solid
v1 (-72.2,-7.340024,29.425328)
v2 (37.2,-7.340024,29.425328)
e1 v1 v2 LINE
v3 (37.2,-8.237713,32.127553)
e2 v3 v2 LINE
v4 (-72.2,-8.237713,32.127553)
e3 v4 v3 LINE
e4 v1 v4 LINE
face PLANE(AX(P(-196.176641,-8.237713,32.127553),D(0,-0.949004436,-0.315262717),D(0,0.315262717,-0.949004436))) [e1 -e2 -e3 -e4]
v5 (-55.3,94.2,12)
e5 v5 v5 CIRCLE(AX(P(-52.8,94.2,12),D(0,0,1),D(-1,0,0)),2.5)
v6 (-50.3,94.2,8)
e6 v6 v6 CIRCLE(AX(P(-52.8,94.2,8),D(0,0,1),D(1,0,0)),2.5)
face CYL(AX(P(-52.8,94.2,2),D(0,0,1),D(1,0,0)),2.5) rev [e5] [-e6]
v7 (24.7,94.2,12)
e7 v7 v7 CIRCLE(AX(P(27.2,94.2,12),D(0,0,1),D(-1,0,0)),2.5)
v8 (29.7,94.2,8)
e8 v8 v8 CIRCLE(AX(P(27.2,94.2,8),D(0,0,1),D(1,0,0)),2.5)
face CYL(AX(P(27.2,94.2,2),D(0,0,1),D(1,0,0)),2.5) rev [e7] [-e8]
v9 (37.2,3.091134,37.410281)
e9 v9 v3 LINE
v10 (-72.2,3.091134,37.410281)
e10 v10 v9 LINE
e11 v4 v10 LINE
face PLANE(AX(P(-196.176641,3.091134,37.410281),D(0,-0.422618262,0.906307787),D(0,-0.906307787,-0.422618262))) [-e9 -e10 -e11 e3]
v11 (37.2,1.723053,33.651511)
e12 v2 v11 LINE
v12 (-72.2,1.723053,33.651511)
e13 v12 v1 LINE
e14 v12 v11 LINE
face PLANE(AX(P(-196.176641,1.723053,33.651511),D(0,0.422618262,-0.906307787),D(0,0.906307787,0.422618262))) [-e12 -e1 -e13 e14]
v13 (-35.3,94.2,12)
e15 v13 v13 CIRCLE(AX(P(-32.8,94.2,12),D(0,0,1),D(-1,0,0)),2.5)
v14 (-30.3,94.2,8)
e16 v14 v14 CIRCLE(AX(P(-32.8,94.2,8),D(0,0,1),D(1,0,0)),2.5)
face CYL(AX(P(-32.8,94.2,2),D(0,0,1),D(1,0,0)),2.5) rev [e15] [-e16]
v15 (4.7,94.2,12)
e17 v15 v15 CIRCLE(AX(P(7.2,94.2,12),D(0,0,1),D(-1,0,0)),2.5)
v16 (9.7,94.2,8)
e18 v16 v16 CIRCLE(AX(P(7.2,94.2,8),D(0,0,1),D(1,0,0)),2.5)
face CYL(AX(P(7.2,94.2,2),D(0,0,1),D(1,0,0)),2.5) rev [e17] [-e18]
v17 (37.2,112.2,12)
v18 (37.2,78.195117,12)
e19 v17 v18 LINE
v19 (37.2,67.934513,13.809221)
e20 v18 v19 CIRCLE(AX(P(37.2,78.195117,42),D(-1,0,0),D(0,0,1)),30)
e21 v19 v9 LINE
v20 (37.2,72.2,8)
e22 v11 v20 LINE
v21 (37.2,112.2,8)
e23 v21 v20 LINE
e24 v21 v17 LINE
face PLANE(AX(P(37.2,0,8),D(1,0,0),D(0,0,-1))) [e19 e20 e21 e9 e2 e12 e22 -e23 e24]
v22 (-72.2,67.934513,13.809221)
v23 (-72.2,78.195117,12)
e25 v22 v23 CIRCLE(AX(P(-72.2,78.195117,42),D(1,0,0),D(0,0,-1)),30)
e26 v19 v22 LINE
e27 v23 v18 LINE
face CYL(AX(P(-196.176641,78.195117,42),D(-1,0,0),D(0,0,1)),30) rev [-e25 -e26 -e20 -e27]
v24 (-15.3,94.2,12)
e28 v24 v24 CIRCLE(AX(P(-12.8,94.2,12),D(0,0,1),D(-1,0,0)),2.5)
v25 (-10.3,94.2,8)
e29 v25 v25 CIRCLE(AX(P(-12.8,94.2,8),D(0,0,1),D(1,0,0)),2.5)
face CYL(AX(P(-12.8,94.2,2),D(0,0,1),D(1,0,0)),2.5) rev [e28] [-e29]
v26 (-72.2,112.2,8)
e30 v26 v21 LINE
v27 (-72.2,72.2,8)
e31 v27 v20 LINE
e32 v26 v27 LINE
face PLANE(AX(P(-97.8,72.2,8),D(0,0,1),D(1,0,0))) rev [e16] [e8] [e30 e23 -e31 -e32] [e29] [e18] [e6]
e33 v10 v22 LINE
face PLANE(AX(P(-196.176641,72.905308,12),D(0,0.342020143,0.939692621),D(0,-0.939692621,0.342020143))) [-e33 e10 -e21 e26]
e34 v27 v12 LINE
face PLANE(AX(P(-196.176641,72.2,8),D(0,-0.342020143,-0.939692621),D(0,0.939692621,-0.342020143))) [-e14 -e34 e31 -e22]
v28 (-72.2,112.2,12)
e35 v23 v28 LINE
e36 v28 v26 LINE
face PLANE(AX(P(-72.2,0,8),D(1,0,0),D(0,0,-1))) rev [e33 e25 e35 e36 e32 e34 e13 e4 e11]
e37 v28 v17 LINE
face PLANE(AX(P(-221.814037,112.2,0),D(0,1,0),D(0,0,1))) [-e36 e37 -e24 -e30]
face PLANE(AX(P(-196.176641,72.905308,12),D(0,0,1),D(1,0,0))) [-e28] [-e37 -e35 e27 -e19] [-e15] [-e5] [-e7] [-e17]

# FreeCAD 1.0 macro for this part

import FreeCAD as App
import Part
import Sketcher
Q = App.Units.Quantity


def edges_at(feature, points):
    """Names of the edges that pass closest to the given points."""
    edges = feature.Shape.Edges
    near = lambda p: min(range(len(edges)), key=lambda i: edges[i].distToShape(Part.Vertex(*p))[0])
    return sorted({f"Edge{near(p) + 1}" for p in points})

doc = App.newDocument("Part")
body = doc.addObject("PartDesign::Body", "Body")

# Sketch on XY plane
sketch1 = body.newObject("Sketcher::SketchObject", "Sketch")
sketch1.AttachmentSupport = (doc.getObject("XY_Plane"), [""])
sketch1.MapMode = "FlatFace"
sketch1.addGeometry(Part.LineSegment(App.Vector(-72.2, 72.2, 0), App.Vector(-72.2, -37.2, 0)), False)
sketch1.addGeometry(Part.LineSegment(App.Vector(-72.2, -37.2, 0), App.Vector(37.2, -37.2, 0)), False)
sketch1.addGeometry(Part.LineSegment(App.Vector(37.2, -37.2, 0), App.Vector(37.2, 72.2, 0)), False)
sketch1.addGeometry(Part.LineSegment(App.Vector(37.2, 72.2, 0), App.Vector(-72.2, 72.2, 0)), False)
sketch1.addGeometry(Part.Circle(App.Vector(0, 35, 0), App.Vector(0, 0, 1), 6), False)
sketch1.addGeometry(Part.Circle(App.Vector(17.5, 52.5, 0), App.Vector(0, 0, 1), 1.5), False)
sketch1.addGeometry(Part.Circle(App.Vector(17.5, 17.5, 0), App.Vector(0, 0, 1), 1.5), False)
sketch1.addGeometry(Part.Circle(App.Vector(-17.5, 52.5, 0), App.Vector(0, 0, 1), 1.5), False)
sketch1.addGeometry(Part.Circle(App.Vector(-52.8, -17.8, 0), App.Vector(0, 0, 1), 1.5), False)
sketch1.addGeometry(Part.Circle(App.Vector(-35, 0, 0), App.Vector(0, 0, 1), 6), False)
sketch1.addGeometry(Part.Circle(App.Vector(-17.5, -17.5, 0), App.Vector(0, 0, 1), 1.5), False)
sketch1.addGeometry(Part.Circle(App.Vector(17.5, -17.5, 0), App.Vector(0, 0, 1), 1.5), False)
sketch1.addGeometry(Part.Circle(App.Vector(0, 0, 0), App.Vector(0, 0, 1), 6), False)
sketch1.addGeometry(Part.Circle(App.Vector(-52.5, 17.5, 0), App.Vector(0, 0, 1), 1.5), False)
sketch1.addGeometry(Part.Circle(App.Vector(-35, 35, 0), App.Vector(0, 0, 1), 6), False)
sketch1.addGeometry(Part.Circle(App.Vector(-52.5, 52.5, 0), App.Vector(0, 0, 1), 1.5), False)
sketch1.addGeometry(Part.Circle(App.Vector(-17.5, 17.5, 0), App.Vector(0, 0, 1), 1.5), False)
sketch1.addConstraint(Sketcher.Constraint("Coincident", 0, 2, 1, 1))
sketch1.addConstraint(Sketcher.Constraint("Coincident", 1, 2, 2, 1))
sketch1.addConstraint(Sketcher.Constraint("Coincident", 2, 2, 3, 1))
sketch1.addConstraint(Sketcher.Constraint("Coincident", 3, 2, 0, 1))
sketch1.addConstraint(Sketcher.Constraint("Vertical", 0))
sketch1.addConstraint(Sketcher.Constraint("Horizontal", 1))
sketch1.addConstraint(Sketcher.Constraint("Vertical", 2))
sketch1.addConstraint(Sketcher.Constraint("Horizontal", 3))
sketch1.addConstraint(Sketcher.Constraint("Coincident", 12, 3, -1, 1))
sketch1.addConstraint(Sketcher.Constraint("Equal", 5, 6))
sketch1.addConstraint(Sketcher.Constraint("Equal", 6, 7))
sketch1.addConstraint(Sketcher.Constraint("Equal", 7, 8))
sketch1.addConstraint(Sketcher.Constraint("Equal", 4, 9))
sketch1.addConstraint(Sketcher.Constraint("Equal", 8, 10))
sketch1.addConstraint(Sketcher.Constraint("Equal", 10, 11))
sketch1.addConstraint(Sketcher.Constraint("Equal", 9, 12))
sketch1.addConstraint(Sketcher.Constraint("Equal", 11, 13))
sketch1.addConstraint(Sketcher.Constraint("Equal", 12, 14))
sketch1.addConstraint(Sketcher.Constraint("Equal", 13, 15))
sketch1.addConstraint(Sketcher.Constraint("Equal", 15, 16))
sketch1.addConstraint(Sketcher.Constraint("Symmetric", 6, 3, 10, 3, -1, 1))
sketch1.addConstraint(Sketcher.Constraint("Symmetric", 11, 3, 16, 3, -1, 1))
sketch1.addConstraint(Sketcher.Constraint("Symmetric", 5, 3, 7, 3, -2))
sketch1.addConstraint(Sketcher.Constraint("Symmetric", 10, 3, 11, 3, -2))
sketch1.addConstraint(Sketcher.Constraint("PointOnObject", 4, 3, -2))
sketch1.addConstraint(Sketcher.Constraint("PointOnObject", 9, 3, -1))
sketch1.addConstraint(Sketcher.Constraint("Horizontal", 6, 3, 13, 3))
sketch1.addConstraint(Sketcher.Constraint("Horizontal", 4, 3, 14, 3))
sketch1.addConstraint(Sketcher.Constraint("Horizontal", 7, 3, 15, 3))
sketch1.addConstraint(Sketcher.Constraint("Vertical", 5, 3, 6, 3))
sketch1.addConstraint(Sketcher.Constraint("Vertical", 9, 3, 14, 3))
sketch1.addConstraint(Sketcher.Constraint("Vertical", 13, 3, 15, 3))
sketch1.addConstraint(Sketcher.Constraint("Equal", 3, 0))
sketch1.addConstraint(Sketcher.Constraint("Diameter", 4, 12.0))
sketch1.addConstraint(Sketcher.Constraint("Diameter", 5, 3.0))
sketch1.addConstraint(Sketcher.Constraint("DistanceX", 1, 1, 1, 2, 109.4))
sketch1.addConstraint(Sketcher.Constraint("DistanceY", -1, 1, 4, 3, 35.0))
sketch1.addConstraint(Sketcher.Constraint("DistanceX", 9, 3, -1, 1, 35.0))
sketch1.addConstraint(Sketcher.Constraint("DistanceY", 6, 3, 5, 3, 35.0))
sketch1.addConstraint(Sketcher.Constraint("DistanceX", 7, 3, 5, 3, 35.0))
sketch1.addConstraint(Sketcher.Constraint("DistanceY", 10, 3, 6, 3, 35.0))
sketch1.addConstraint(Sketcher.Constraint("DistanceX", 13, 3, 7, 3, 35.0))
sketch1.addConstraint(Sketcher.Constraint("DistanceX", 0, 2, -1, 1, 72.2))
sketch1.addConstraint(Sketcher.Constraint("DistanceY", 0, 2, -1, 1, 37.2))
sketch1.addConstraint(Sketcher.Constraint("DistanceX", 8, 3, -1, 1, 52.809904))
sketch1.addConstraint(Sketcher.Constraint("DistanceY", 8, 3, -1, 1, 17.809904))
pad1 = body.newObject("PartDesign::Pad", "Pad")
pad1.Profile = sketch1
pad1.Length = 8
body2 = doc.addObject("PartDesign::Body", "Body001")

# Sketch on YZ plane
sketch2 = body2.newObject("Sketcher::SketchObject", "Sketch001")
sketch2.AttachmentSupport = (doc.getObject("YZ_Plane001"), [""])
sketch2.MapMode = "FlatFace"
sketch2.AttachmentOffset = App.Placement(App.Vector(0, 0, 37.2), App.Rotation())
sketch2.addGeometry(Part.LineSegment(App.Vector(1.7, 33.7, 0), App.Vector(72.2, 8, 0)), False)
sketch2.addGeometry(Part.LineSegment(App.Vector(72.2, 8, 0), App.Vector(112.2, 8, 0)), False)
sketch2.addGeometry(Part.LineSegment(App.Vector(112.2, 8, 0), App.Vector(112.2, 12, 0)), False)
sketch2.addGeometry(Part.LineSegment(App.Vector(112.2, 12, 0), App.Vector(72.9, 12, 0)), False)
sketch2.addGeometry(Part.LineSegment(App.Vector(72.9, 12, 0), App.Vector(3.1, 37.4, 0)), False)
sketch2.addGeometry(Part.LineSegment(App.Vector(3.1, 37.4, 0), App.Vector(-8.2, 32.1, 0)), False)
sketch2.addGeometry(Part.LineSegment(App.Vector(-8.2, 32.1, 0), App.Vector(-7.3, 29.4, 0)), False)
sketch2.addGeometry(Part.LineSegment(App.Vector(-7.3, 29.4, 0), App.Vector(1.7, 33.7, 0)), False)
sketch2.addConstraint(Sketcher.Constraint("Coincident", 0, 2, 1, 1))
sketch2.addConstraint(Sketcher.Constraint("Coincident", 1, 2, 2, 1))
sketch2.addConstraint(Sketcher.Constraint("Coincident", 2, 2, 3, 1))
sketch2.addConstraint(Sketcher.Constraint("Coincident", 3, 2, 4, 1))
sketch2.addConstraint(Sketcher.Constraint("Coincident", 4, 2, 5, 1))
sketch2.addConstraint(Sketcher.Constraint("Coincident", 5, 2, 6, 1))
sketch2.addConstraint(Sketcher.Constraint("Coincident", 6, 2, 7, 1))
sketch2.addConstraint(Sketcher.Constraint("Coincident", 7, 2, 0, 1))
sketch2.addConstraint(Sketcher.Constraint("Horizontal", 1))
sketch2.addConstraint(Sketcher.Constraint("Vertical", 2))
sketch2.addConstraint(Sketcher.Constraint("Horizontal", 3))
sketch2.addConstraint(Sketcher.Constraint("Parallel", 0, 4))
sketch2.addConstraint(Sketcher.Constraint("Parallel", 5, 7))
sketch2.addConstraint(Sketcher.Constraint("DistanceX", 1, 1, 1, 2, 40.0))
sketch2.addConstraint(Sketcher.Constraint("DistanceY", 2, 1, 2, 2, 4.0))
sketch2.addConstraint(Sketcher.Constraint("Angle", 0, Q("-20 deg")))
sketch2.addConstraint(Sketcher.Constraint("Angle", 5, Q("-155 deg")))
sketch2.addConstraint(Sketcher.Constraint("Distance", 0, 75.0))
sketch2.addConstraint(Sketcher.Constraint("Distance", 7, 10.0))
sketch2.addConstraint(Sketcher.Constraint("DistanceY", -1, 1, 0, 2, 8.0))
sketch2.addConstraint(Sketcher.Constraint("Distance", 5, 12.5))
sketch2.addConstraint(Sketcher.Constraint("DistanceX", -1, 1, 0, 2, 72.2))
sketch2.addConstraint(Sketcher.Constraint("Distance", 6, 2.847431))
sketch2.addConstraint(Sketcher.Constraint("DistanceX", 3, 2, 3, 1, 39.294692))
pad2 = body2.newObject("PartDesign::Pad", "Pad001")
pad2.Profile = sketch2
pad2.Length = 109.4
pad2.Reversed = True
doc.recompute()

fillet = body2.newObject("PartDesign::Fillet", "Fillet")
fillet.Base = (pad2, edges_at(pad2, [(-17.5, 72.905, 12)]))
fillet.Radius = 30
body.AllowCompound = True
doc.recompute()

boolean = body.newObject("PartDesign::Boolean", "Boolean")
boolean.Type = "Fuse"
boolean.addObjects([body2])

# Sketch on YZ plane
sketch3 = body.newObject("Sketcher::SketchObject", "Sketch002")
sketch3.AttachmentSupport = (doc.getObject("YZ_Plane"), [""])
sketch3.MapMode = "FlatFace"
sketch3.AttachmentOffset = App.Placement(App.Vector(0, 0, 37.2), App.Rotation())
sketch3.addGeometry(Part.LineSegment(App.Vector(112, 8, 0), App.Vector(-37, 8, 0)), False)
sketch3.addGeometry(Part.LineSegment(App.Vector(-37, 8, 0), App.Vector(-37, 0, 0)), False)
sketch3.addGeometry(Part.LineSegment(App.Vector(-37, 0, 0), App.Vector(112, 0, 0)), False)
sketch3.addGeometry(Part.LineSegment(App.Vector(112, 0, 0), App.Vector(112, 8, 0)), False)
sketch3.addConstraint(Sketcher.Constraint("Coincident", 0, 2, 1, 1))
sketch3.addConstraint(Sketcher.Constraint("Coincident", 1, 2, 2, 1))
sketch3.addConstraint(Sketcher.Constraint("Coincident", 2, 2, 3, 1))
sketch3.addConstraint(Sketcher.Constraint("Coincident", 3, 2, 0, 1))
sketch3.addConstraint(Sketcher.Constraint("Horizontal", 0))
sketch3.addConstraint(Sketcher.Constraint("Vertical", 1))
sketch3.addConstraint(Sketcher.Constraint("Horizontal", 2))
sketch3.addConstraint(Sketcher.Constraint("Vertical", 3))
sketch3.addConstraint(Sketcher.Constraint("PointOnObject", 1, 2, -1))
sketch3.addConstraint(Sketcher.Constraint("DistanceY", 1, 2, 1, 1, 8.0))
sketch3.addConstraint(Sketcher.Constraint("DistanceX", 0, 2, 0, 1, 149.4))
sketch3.addConstraint(Sketcher.Constraint("DistanceX", 0, 2, -1, 1, 37.2))
pad3 = body.newObject("PartDesign::Pad", "Pad002")
pad3.Profile = sketch3
pad3.Length = 109.4
pad3.Reversed = True

# Sketch on YZ plane
sketch4 = body.newObject("Sketcher::SketchObject", "Sketch003")
sketch4.AttachmentSupport = (doc.getObject("YZ_Plane"), [""])
sketch4.MapMode = "FlatFace"
sketch4.AttachmentOffset = App.Placement(App.Vector(0, 0, 37.2), App.Rotation())
sketch4.addGeometry(Part.LineSegment(App.Vector(72, 8, 0), App.Vector(-37, 8, 0)), False)
sketch4.addGeometry(Part.LineSegment(App.Vector(-37, 8, 0), App.Vector(-37, 0, 0)), False)
sketch4.addGeometry(Part.LineSegment(App.Vector(-37, 0, 0), App.Vector(72, 0, 0)), False)
sketch4.addGeometry(Part.LineSegment(App.Vector(72, 0, 0), App.Vector(72, 8, 0)), False)
sketch4.addConstraint(Sketcher.Constraint("Coincident", 0, 2, 1, 1))
sketch4.addConstraint(Sketcher.Constraint("Coincident", 1, 2, 2, 1))
sketch4.addConstraint(Sketcher.Constraint("Coincident", 2, 2, 3, 1))
sketch4.addConstraint(Sketcher.Constraint("Coincident", 3, 2, 0, 1))
sketch4.addConstraint(Sketcher.Constraint("Horizontal", 0))
sketch4.addConstraint(Sketcher.Constraint("Vertical", 1))
sketch4.addConstraint(Sketcher.Constraint("Horizontal", 2))
sketch4.addConstraint(Sketcher.Constraint("Vertical", 3))
sketch4.addConstraint(Sketcher.Constraint("PointOnObject", 1, 2, -1))
sketch4.addConstraint(Sketcher.Constraint("DistanceY", 1, 2, 1, 1, 8.0))
sketch4.addConstraint(Sketcher.Constraint("DistanceX", 0, 2, 0, 1, 109.4))
sketch4.addConstraint(Sketcher.Constraint("DistanceX", 0, 2, -1, 1, 37.2))
pocket1 = body.newObject("PartDesign::Pocket", "Pocket")
pocket1.Profile = sketch4
pocket1.Length = 135

# Sketch on YZ plane
sketch5 = body.newObject("Sketcher::SketchObject", "Sketch004")
sketch5.AttachmentSupport = (doc.getObject("YZ_Plane"), [""])
sketch5.MapMode = "FlatFace"
sketch5.AttachmentOffset = App.Placement(App.Vector(0, 0, 37.2), App.Rotation())
sketch5.addGeometry(Part.LineSegment(App.Vector(112, 8, 0), App.Vector(72, 8, 0)), False)
sketch5.addGeometry(Part.LineSegment(App.Vector(72, 8, 0), App.Vector(72, 0, 0)), False)
sketch5.addGeometry(Part.LineSegment(App.Vector(72, 0, 0), App.Vector(112, 0, 0)), False)
sketch5.addGeometry(Part.LineSegment(App.Vector(112, 0, 0), App.Vector(112, 8, 0)), False)
sketch5.addConstraint(Sketcher.Constraint("Coincident", 0, 2, 1, 1))
sketch5.addConstraint(Sketcher.Constraint("Coincident", 1, 2, 2, 1))
sketch5.addConstraint(Sketcher.Constraint("Coincident", 2, 2, 3, 1))
sketch5.addConstraint(Sketcher.Constraint("Coincident", 3, 2, 0, 1))
sketch5.addConstraint(Sketcher.Constraint("Horizontal", 0))
sketch5.addConstraint(Sketcher.Constraint("Vertical", 1))
sketch5.addConstraint(Sketcher.Constraint("Horizontal", 2))
sketch5.addConstraint(Sketcher.Constraint("Vertical", 3))
sketch5.addConstraint(Sketcher.Constraint("PointOnObject", 1, 2, -1))
sketch5.addConstraint(Sketcher.Constraint("DistanceX", 0, 2, 0, 1, 40.0))
sketch5.addConstraint(Sketcher.Constraint("DistanceY", 1, 2, 1, 1, 8.0))
sketch5.addConstraint(Sketcher.Constraint("DistanceX", -1, 1, 0, 2, 72.2))
pocket2 = body.newObject("PartDesign::Pocket", "Pocket001")
pocket2.Profile = sketch5
pocket2.Length = 135

# Sketch on XY plane
sketch6 = body.newObject("Sketcher::SketchObject", "Sketch005")
sketch6.AttachmentSupport = (doc.getObject("XY_Plane"), [""])
sketch6.MapMode = "FlatFace"
sketch6.AttachmentOffset = App.Placement(App.Vector(0, 0, 12), App.Rotation())
sketch6.addGeometry(Part.Circle(App.Vector(-52.8, 94.2, 0), App.Vector(0, 0, 1), 2.5), False)
sketch6.addGeometry(Part.Circle(App.Vector(-32.8, 94.2, 0), App.Vector(0, 0, 1), 2.5), False)
sketch6.addGeometry(Part.Circle(App.Vector(-12.8, 94.2, 0), App.Vector(0, 0, 1), 2.5), False)
sketch6.addGeometry(Part.Circle(App.Vector(7.2, 94.2, 0), App.Vector(0, 0, 1), 2.5), False)
sketch6.addGeometry(Part.Circle(App.Vector(27.2, 94.2, 0), App.Vector(0, 0, 1), 2.5), False)
sketch6.addConstraint(Sketcher.Constraint("Equal", 0, 1))
sketch6.addConstraint(Sketcher.Constraint("Equal", 1, 2))
sketch6.addConstraint(Sketcher.Constraint("Equal", 2, 3))
sketch6.addConstraint(Sketcher.Constraint("Equal", 3, 4))
sketch6.addConstraint(Sketcher.Constraint("Horizontal", 0, 3, 1, 3))
sketch6.addConstraint(Sketcher.Constraint("Horizontal", 1, 3, 2, 3))
sketch6.addConstraint(Sketcher.Constraint("Horizontal", 2, 3, 3, 3))
sketch6.addConstraint(Sketcher.Constraint("Horizontal", 3, 3, 4, 3))
sketch6.addConstraint(Sketcher.Constraint("Diameter", 0, 5.0))
sketch6.addConstraint(Sketcher.Constraint("DistanceX", 0, 3, 1, 3, 20.0))
sketch6.addConstraint(Sketcher.Constraint("DistanceX", 1, 3, 2, 3, 20.0))
sketch6.addConstraint(Sketcher.Constraint("DistanceX", 2, 3, 3, 3, 20.0))
sketch6.addConstraint(Sketcher.Constraint("DistanceX", 3, 3, 4, 3, 20.0))
sketch6.addConstraint(Sketcher.Constraint("DistanceX", 0, 3, -1, 1, 52.8))
sketch6.addConstraint(Sketcher.Constraint("DistanceY", -1, 1, 0, 3, 94.2))
pocket3 = body.newObject("PartDesign::Pocket", "Pocket002")
pocket3.Profile = sketch6
pocket3.Length = 10

doc.recompute()
